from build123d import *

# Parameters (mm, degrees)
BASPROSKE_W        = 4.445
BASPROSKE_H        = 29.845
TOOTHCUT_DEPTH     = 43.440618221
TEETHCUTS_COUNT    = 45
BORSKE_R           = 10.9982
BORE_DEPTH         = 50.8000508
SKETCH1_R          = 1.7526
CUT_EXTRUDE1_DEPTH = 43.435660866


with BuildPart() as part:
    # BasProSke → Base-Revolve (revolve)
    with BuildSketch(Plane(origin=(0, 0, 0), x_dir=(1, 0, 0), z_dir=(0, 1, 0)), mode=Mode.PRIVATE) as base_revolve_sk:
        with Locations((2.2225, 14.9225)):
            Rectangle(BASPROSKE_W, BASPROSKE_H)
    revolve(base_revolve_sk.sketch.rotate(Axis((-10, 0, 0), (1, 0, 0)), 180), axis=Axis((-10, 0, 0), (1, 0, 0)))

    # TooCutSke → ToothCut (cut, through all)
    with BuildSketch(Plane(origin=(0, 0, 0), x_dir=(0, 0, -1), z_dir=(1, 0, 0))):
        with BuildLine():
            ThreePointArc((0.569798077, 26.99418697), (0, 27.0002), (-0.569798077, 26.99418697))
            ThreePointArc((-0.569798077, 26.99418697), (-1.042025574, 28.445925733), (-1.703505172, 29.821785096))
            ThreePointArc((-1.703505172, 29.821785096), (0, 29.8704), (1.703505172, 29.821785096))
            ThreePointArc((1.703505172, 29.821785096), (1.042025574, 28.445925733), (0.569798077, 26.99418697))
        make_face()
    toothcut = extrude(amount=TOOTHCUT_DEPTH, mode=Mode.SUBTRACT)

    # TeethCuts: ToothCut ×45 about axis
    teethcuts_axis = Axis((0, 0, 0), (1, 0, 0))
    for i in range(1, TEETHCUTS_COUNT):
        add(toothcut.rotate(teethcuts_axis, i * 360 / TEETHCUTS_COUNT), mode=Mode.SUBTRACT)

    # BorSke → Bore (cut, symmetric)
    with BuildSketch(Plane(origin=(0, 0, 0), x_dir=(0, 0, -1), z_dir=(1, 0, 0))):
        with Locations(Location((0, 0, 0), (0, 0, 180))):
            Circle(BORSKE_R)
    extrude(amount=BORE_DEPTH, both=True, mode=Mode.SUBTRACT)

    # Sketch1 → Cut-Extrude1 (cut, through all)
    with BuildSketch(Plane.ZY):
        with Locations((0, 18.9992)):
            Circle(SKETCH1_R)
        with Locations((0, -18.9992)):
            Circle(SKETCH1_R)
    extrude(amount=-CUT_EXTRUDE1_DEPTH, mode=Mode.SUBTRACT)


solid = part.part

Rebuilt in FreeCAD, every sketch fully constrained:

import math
import FreeCAD as App
import Part
import Sketcher
from FreeCAD import Vector
Q = App.Units.Quantity


def add_polygon(sketch, points):
    """Adds a closed chain of lines whose ends are joined by coincident constraints."""
    first, n = sketch.GeometryCount, len(points)
    for a, b in zip(points, points[1:] + points[:1]):
        sketch.addGeometry(Part.LineSegment(App.Vector(*a, 0), App.Vector(*b, 0)), False)
    for i in range(n):
        sketch.addConstraint(Sketcher.Constraint("Coincident", first + i, 2, first + (i + 1) % n, 1))

doc = App.newDocument("Part")
params = doc.addObject("Spreadsheet::Sheet", "Params")
for row, (alias, value) in enumerate([
    ("sketch1_width", "0.175 in"),
    ("sketch1_height", "1.175 in"),
    ("revolution_angle", "360 deg"),
    ("sketch2_radius", "0.45 in"),
    ("sketch2_radius2", "1.0629999 in"),
    ("sketch2_radius3", "1.176 in"),
    ("sketch3_diameter", "0.866 in"),
    ("pocket2_length", "101.600102 mm"),
    ("sketch4_diameter", "0.138 in"),
], start=1):
    params.set(f"A{row}", alias)
    params.set(f"B{row}", "=" + value)
    params.setAlias(f"B{row}", alias)

body = doc.addObject("PartDesign::Body", "Body")

sketch1 = body.newObject("Sketcher::SketchObject", "Sketch")
sketch1.AttachmentSupport = (doc.getObject("XZ_Plane"), [""])
sketch1.MapMode = "FlatFace"
add_polygon(sketch1, [(0, -29.8), (0, 0), (4.4, 0), (4.4, -29.8)])
sketch1.addConstraint([
    Sketcher.Constraint("Vertical", 0),
    Sketcher.Constraint("Horizontal", 1),
    Sketcher.Constraint("Vertical", 2),
    Sketcher.Constraint("Horizontal", 3),
    Sketcher.Constraint("Coincident", 0, 2, -1, 1),
    Sketcher.Constraint("DistanceX", 1, 1, 1, 2, Q("0.175 in")),
    Sketcher.Constraint("DistanceY", 0, 1, 0, 2, Q("1.175 in")),
])
sketch1.setExpression("Constraints[9]", "Params.sketch1_width")
sketch1.setExpression("Constraints[10]", "Params.sketch1_height")
revolution = body.newObject("PartDesign::Revolution", "Revolution")
revolution.Profile = sketch1
revolution.ReferenceAxis = (sketch1, ["H_Axis"])
revolution.setExpression("Angle", "Params.revolution_angle")

sketch2 = body.newObject("Sketcher::SketchObject", "Sketch001")
sketch2.AttachmentSupport = (doc.getObject("YZ_Plane"), [""])
sketch2.MapMode = "FlatFace"
sketch2.addGeometry([
    Part.ArcOfCircle(Part.Circle(Vector(0, 0, 0), Vector(0, 0, 1), 27), math.radians(-1.21), math.radians(1.21)),
    Part.ArcOfCircle(Part.Circle(Vector(24.2, -11.7, 0), Vector(0, 0, 1), 11.4), math.radians(60.49), math.radians(75.81)),
    Part.ArcOfCircle(Part.Circle(Vector(0, 0, 0), Vector(0, 0, 1), 29.9), math.radians(-3.27), math.radians(3.27)),
    Part.ArcOfCircle(Part.Circle(Vector(24.2, 11.7, 0), Vector(0, 0, 1), 11.4), math.radians(-75.81), math.radians(-60.49)),
], False)
sketch2.addConstraint([
    Sketcher.Constraint("Coincident", 0, 1, 1, 2),
    Sketcher.Constraint("Coincident", 1, 1, 2, 1),
    Sketcher.Constraint("Coincident", 2, 2, 3, 2),
    Sketcher.Constraint("Coincident", 3, 1, 0, 2),
    Sketcher.Constraint("Coincident", 0, 3, -1, 1),
    Sketcher.Constraint("Coincident", 2, 3, -1, 1),
    Sketcher.Constraint("Equal", 1, 3),
    Sketcher.Constraint("Symmetric", 1, 3, 3, 3, -1),
    Sketcher.Constraint("Radius", 1, Q("0.45 in")),
    Sketcher.Constraint("Radius", 0, Q("1.0629999 in")),
    Sketcher.Constraint("Radius", 2, Q("1.176 in")),
    Sketcher.Constraint("DistanceY", 0, 1, 2, 2, Q("0.0895001 in")),
    Sketcher.Constraint("DistanceY", 0, 1, -1, 1, 0.569798),
])
sketch2.setExpression("Constraints[8]", "Params.sketch2_radius")
sketch2.setExpression("Constraints[9]", "Params.sketch2_radius2")
sketch2.setExpression("Constraints[10]", "Params.sketch2_radius3")
pocket1 = body.newObject("PartDesign::Pocket", "Pocket")
pocket1.Profile = sketch2
pocket1.Type = "ThroughAll"
pocket1.Reversed = True
doc.recompute()

polarpattern = body.newObject("PartDesign::PolarPattern", "PolarPattern")
polarpattern.Originals = [pocket1]
polarpattern.Axis = (doc.getObject("X_Axis"), [""])
polarpattern.Angle = 360
polarpattern.Occurrences = 45
body.Tip = polarpattern

sketch3 = body.newObject("Sketcher::SketchObject", "Sketch002")
sketch3.AttachmentSupport = (doc.getObject("YZ_Plane"), [""])
sketch3.MapMode = "FlatFace"
sketch3.addGeometry(Part.Circle(Vector(0, 0, 0), Vector(0, 0, 1), 11), False)
sketch3.addConstraint([
    Sketcher.Constraint("Coincident", 0, 3, -1, 1),
    Sketcher.Constraint("Diameter", 0, Q("0.866 in")),
])
sketch3.setExpression("Constraints[1]", "Params.sketch3_diameter")
pocket2 = body.newObject("PartDesign::Pocket", "Pocket001")
pocket2.Profile = sketch3
pocket2.setExpression("Length", "Params.pocket2_length")
pocket2.Midplane = True

sketch4 = body.newObject("Sketcher::SketchObject", "Sketch003")
sketch4.AttachmentSupport = (doc.getObject("YZ_Plane"), [""])
sketch4.MapMode = "FlatFace"
sketch4.addGeometry([
    Part.Circle(Vector(19, 0, 0), Vector(0, 0, 1), 1.8),
    Part.Circle(Vector(-19, 0, 0), Vector(0, 0, 1), 1.8),
], False)
sketch4.addConstraint([
    Sketcher.Constraint("Equal", 0, 1),
    Sketcher.Constraint("Symmetric", 0, 3, 1, 3, -1, 1),
    Sketcher.Constraint("PointOnObject", 0, 3, -1),
    Sketcher.Constraint("Diameter", 0, Q("0.138 in")),
    Sketcher.Constraint("DistanceX", -1, 1, 0, 3, Q("0.748 in")),
])
sketch4.setExpression("Constraints[3]", "Params.sketch4_diameter")
pocket3 = body.newObject("PartDesign::Pocket", "Pocket002")
pocket3.Profile = sketch4
pocket3.Type = "ThroughAll"
pocket3.Reversed = True

doc.recompute()
